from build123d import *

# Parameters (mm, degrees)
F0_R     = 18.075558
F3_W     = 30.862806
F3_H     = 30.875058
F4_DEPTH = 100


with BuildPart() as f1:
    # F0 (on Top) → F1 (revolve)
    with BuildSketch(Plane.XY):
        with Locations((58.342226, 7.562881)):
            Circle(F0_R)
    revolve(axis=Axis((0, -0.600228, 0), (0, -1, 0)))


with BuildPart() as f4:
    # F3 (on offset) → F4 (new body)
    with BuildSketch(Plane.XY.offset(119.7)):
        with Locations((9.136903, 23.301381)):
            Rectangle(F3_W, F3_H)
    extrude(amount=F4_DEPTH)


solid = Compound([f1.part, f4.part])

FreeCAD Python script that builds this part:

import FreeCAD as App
import Part
import Sketcher
Q = App.Units.Quantity


def add_polygon(sketch, points):
    """Adds a closed chain of lines whose ends are joined by coincident constraints."""
    first, n = sketch.GeometryCount, len(points)
    for a, b in zip(points, points[1:] + points[:1]):
        sketch.addGeometry(Part.LineSegment(App.Vector(*a, 0), App.Vector(*b, 0)), False)
    for i in range(n):
        sketch.addConstraint(Sketcher.Constraint("Coincident", first + i, 2, first + (i + 1) % n, 1))

doc = App.newDocument("Part")
body = doc.addObject("PartDesign::Body", "Body")

# Sketch on XY plane
sketch1 = doc.addObject("Sketcher::SketchObject", "Sketch")
body.addObject(sketch1)
sketch1.AttachmentSupport = (doc.XY_Plane, [""])
sketch1.MapMode = "FlatFace"
sketch1.addGeometry(Part.Circle(App.Vector(58, 8, 0), App.Vector(0, 0, 1), 18), False)
sketch1.addConstraint([
    Sketcher.Constraint("Diameter", 0, Q("36.151116 mm")),
    Sketcher.Constraint("DistanceY", -1, 1, 0, 3, Q("7.562881 mm")),
    Sketcher.Constraint("DistanceX", -1, 1, 0, 3, Q("58.342226 mm")),
])
revolution = doc.addObject("PartDesign::Revolution", "Revolution")
body.addObject(revolution)
revolution.Profile = sketch1
revolution.ReferenceAxis = (sketch1, ["V_Axis"])
revolution.Angle = 360
body2 = doc.addObject("PartDesign::Body", "Body001")

# Sketch on XY plane
sketch2 = doc.addObject("Sketcher::SketchObject", "Sketch001")
body2.addObject(sketch2)
sketch2.AttachmentSupport = (doc.getObject("XY_Plane001"), [""])
sketch2.MapMode = "FlatFace"
sketch2.AttachmentOffset = App.Placement(App.Vector(0, 0, 119.7), App.Rotation())
add_polygon(sketch2, [(-6, 39), (-6, 8), (25, 8), (25, 39)])  # lines 0-3
sketch2.addConstraint([
    Sketcher.Constraint("Vertical", 0),
    Sketcher.Constraint("Horizontal", 1),
    Sketcher.Constraint("Vertical", 2),
    Sketcher.Constraint("Horizontal", 3),
    Sketcher.Constraint("DistanceX", 0, 2, -1, 1, Q("6.2945 mm")),
    Sketcher.Constraint("DistanceX", 1, 1, 1, 2, Q("30.862806 mm")),
    Sketcher.Constraint("DistanceY", 0, 2, 0, 1, Q("30.875058 mm")),
    Sketcher.Constraint("DistanceY", -1, 1, 0, 2, Q("7.863852 mm")),
])
pad1 = doc.addObject("PartDesign::Pad", "Pad")
body2.addObject(pad1)
pad1.Profile = sketch2
pad1.Length = 100

doc.recompute()
